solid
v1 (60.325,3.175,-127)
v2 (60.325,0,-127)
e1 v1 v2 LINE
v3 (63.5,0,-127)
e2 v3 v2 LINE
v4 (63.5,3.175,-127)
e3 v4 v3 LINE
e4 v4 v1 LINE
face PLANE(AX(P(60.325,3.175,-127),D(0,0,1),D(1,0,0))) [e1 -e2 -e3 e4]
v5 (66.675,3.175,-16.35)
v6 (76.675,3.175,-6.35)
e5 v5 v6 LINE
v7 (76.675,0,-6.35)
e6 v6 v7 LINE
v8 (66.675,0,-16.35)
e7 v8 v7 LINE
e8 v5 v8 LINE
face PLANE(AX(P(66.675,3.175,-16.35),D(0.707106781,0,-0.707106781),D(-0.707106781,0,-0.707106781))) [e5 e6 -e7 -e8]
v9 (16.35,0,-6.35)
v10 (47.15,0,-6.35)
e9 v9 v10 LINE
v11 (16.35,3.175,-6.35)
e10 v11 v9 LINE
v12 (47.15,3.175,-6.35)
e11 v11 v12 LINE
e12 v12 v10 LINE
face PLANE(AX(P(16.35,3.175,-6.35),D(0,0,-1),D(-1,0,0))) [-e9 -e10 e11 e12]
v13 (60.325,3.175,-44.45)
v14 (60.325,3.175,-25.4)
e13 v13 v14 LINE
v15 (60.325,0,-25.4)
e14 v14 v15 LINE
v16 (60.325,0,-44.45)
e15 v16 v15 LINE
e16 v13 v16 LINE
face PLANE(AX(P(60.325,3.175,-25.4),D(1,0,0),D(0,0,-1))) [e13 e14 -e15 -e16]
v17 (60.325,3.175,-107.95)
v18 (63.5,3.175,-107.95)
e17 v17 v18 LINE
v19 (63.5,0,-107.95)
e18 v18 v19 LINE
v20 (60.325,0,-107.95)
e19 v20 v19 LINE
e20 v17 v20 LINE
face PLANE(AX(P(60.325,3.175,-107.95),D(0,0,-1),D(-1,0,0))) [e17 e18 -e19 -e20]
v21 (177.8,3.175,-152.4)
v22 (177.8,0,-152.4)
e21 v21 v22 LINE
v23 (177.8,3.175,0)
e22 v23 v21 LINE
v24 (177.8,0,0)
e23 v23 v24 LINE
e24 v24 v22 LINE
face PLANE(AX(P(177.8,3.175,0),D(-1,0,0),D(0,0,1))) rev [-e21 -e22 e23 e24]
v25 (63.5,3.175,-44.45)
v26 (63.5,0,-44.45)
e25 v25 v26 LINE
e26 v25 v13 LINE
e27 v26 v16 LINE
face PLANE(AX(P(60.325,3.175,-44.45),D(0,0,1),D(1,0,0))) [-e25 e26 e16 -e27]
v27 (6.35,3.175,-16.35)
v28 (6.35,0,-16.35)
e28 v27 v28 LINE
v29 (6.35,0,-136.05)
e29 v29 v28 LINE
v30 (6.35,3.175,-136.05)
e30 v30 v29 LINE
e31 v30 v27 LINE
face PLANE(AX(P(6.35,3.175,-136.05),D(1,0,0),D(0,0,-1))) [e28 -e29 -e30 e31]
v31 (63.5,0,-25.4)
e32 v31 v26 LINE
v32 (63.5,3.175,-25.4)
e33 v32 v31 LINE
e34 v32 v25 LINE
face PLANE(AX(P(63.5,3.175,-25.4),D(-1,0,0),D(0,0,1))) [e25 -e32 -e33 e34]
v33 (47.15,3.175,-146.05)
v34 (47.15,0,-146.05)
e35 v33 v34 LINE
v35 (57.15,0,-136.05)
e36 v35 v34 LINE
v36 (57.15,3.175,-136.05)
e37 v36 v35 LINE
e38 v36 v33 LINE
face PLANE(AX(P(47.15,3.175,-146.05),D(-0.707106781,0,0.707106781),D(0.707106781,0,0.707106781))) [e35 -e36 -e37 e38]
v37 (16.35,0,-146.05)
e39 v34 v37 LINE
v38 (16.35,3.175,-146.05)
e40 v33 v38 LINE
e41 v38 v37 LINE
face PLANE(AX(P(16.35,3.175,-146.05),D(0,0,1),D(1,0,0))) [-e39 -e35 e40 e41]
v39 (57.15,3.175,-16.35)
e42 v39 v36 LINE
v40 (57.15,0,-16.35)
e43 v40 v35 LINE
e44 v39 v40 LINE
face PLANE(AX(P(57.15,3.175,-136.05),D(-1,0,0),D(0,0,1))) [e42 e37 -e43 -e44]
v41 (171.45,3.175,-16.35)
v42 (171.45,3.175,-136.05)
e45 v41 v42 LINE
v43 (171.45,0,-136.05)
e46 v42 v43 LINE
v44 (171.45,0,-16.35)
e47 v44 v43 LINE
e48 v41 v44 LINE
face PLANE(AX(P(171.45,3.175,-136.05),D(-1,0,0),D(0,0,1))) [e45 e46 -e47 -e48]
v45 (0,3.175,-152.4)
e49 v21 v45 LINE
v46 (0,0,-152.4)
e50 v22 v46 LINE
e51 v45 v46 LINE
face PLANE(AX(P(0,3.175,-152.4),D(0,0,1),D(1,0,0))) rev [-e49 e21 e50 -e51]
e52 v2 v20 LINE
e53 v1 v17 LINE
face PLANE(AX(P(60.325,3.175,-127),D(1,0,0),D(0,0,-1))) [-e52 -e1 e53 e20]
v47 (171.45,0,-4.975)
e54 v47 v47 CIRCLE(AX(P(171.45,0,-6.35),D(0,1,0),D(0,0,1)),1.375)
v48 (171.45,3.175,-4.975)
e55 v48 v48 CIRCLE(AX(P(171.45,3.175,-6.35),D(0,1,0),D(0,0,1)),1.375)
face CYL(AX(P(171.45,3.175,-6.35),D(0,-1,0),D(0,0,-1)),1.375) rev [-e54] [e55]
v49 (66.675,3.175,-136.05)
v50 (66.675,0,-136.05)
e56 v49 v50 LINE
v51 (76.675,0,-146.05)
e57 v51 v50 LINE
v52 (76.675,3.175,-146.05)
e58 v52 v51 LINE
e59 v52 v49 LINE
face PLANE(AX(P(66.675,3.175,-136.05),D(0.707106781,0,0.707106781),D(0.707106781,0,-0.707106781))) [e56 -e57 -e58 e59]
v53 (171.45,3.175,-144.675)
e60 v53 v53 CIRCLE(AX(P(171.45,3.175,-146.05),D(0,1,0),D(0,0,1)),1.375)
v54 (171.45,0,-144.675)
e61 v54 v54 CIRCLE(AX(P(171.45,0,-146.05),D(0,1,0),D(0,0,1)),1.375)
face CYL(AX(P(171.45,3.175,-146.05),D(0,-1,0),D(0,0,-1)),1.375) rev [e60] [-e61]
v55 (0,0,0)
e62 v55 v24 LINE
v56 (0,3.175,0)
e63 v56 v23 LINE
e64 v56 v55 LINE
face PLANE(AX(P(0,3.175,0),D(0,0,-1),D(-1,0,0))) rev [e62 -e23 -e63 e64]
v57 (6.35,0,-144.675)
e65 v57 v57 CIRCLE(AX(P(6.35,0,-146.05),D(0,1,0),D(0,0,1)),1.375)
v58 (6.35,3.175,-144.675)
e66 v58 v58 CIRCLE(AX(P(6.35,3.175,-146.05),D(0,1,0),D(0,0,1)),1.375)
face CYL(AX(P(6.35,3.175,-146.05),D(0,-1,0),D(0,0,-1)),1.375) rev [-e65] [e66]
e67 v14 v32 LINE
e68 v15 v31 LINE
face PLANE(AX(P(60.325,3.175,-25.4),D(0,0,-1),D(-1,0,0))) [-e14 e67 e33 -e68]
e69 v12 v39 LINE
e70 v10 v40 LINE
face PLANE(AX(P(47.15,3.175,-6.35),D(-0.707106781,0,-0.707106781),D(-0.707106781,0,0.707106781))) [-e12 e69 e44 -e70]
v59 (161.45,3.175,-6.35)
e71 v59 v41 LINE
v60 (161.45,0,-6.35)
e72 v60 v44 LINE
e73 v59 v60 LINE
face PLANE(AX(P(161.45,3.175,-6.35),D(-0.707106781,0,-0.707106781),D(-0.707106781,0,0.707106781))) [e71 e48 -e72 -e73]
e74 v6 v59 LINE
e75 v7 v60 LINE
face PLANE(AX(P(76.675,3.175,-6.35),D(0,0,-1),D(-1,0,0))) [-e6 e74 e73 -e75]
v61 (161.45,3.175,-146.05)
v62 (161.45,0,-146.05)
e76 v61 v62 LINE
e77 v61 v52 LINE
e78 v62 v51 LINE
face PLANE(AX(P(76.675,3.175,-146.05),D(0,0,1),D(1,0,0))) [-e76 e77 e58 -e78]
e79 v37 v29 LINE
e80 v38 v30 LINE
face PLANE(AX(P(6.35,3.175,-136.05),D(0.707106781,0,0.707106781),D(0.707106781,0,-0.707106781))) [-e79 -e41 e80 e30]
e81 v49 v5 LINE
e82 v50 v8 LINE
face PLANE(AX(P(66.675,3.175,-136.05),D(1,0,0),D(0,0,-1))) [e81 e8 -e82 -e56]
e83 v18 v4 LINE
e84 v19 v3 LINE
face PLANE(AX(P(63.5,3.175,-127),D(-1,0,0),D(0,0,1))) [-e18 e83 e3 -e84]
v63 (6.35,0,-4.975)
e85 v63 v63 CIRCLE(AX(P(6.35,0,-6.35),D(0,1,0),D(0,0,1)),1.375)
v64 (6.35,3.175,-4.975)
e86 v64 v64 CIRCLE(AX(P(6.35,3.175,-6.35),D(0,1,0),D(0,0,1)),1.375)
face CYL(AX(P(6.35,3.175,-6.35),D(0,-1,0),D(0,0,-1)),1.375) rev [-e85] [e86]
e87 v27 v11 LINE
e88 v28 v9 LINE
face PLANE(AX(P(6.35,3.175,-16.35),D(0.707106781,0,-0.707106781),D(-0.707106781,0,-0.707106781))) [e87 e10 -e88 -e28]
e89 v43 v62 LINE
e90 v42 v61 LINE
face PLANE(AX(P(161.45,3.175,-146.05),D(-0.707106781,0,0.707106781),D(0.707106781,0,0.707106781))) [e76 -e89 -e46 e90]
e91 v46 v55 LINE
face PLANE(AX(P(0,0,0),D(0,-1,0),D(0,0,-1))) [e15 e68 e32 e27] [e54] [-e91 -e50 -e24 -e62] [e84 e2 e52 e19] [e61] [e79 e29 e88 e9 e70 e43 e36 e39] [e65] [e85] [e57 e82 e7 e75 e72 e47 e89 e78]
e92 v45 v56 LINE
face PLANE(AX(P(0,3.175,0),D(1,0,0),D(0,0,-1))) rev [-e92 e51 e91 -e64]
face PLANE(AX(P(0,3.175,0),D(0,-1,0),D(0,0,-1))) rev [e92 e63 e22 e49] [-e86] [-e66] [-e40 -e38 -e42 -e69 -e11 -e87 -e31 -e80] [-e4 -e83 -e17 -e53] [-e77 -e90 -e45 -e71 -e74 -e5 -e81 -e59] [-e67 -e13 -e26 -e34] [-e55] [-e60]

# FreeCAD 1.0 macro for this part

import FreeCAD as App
import Part
import Sketcher
Q = App.Units.Quantity


def add_polygon(sketch, points):
    """Adds a closed chain of lines whose ends are joined by coincident constraints."""
    first, n = sketch.GeometryCount, len(points)
    for a, b in zip(points, points[1:] + points[:1]):
        sketch.addGeometry(Part.LineSegment(App.Vector(*a, 0), App.Vector(*b, 0)), False)
    for i in range(n):
        sketch.addConstraint(Sketcher.Constraint("Coincident", first + i, 2, first + (i + 1) % n, 1))

doc = App.newDocument("Part")
body = doc.addObject("PartDesign::Body", "Body")

sketch1 = body.newObject("Sketcher::SketchObject", "Sketch")
sketch1.AttachmentSupport = (doc.getObject("XZ_Plane"), [""])
sketch1.MapMode = "FlatFace"
add_polygon(sketch1, [(0, -152.4), (0, 0), (177.8, 0), (177.8, -152.4)])
sketch1.addGeometry(Part.Circle(App.Vector(6.3, -6.3, 0), App.Vector(0, 0, 1), 1.4), False)
add_polygon(sketch1, [(63.5, -25.4), (60.3, -25.4), (60.3, -44.5), (63.5, -44.5)])
sketch1.addGeometry(Part.Circle(App.Vector(171.4, -6.3, 0), App.Vector(0, 0, 1), 1.4), False)
add_polygon(sketch1, [(16.4, -6.3), (6.3, -16.4), (6.3, -136.1), (16.4, -146.1), (47.1, -146.1), (57.1, -136.1), (57.1, -16.4), (47.1, -6.3)])
sketch1.addGeometry(Part.Circle(App.Vector(6.3, -146.1, 0), App.Vector(0, 0, 1), 1.4), False)
add_polygon(sketch1, [(63.5, -108), (60.3, -108), (60.3, -127), (63.5, -127)])
add_polygon(sketch1, [(66.7, -136.1), (76.7, -146.1), (161.4, -146.1), (171.4, -136.1), (171.4, -16.4), (161.4, -6.3), (76.7, -6.3), (66.7, -16.4)])
sketch1.addGeometry(Part.Circle(App.Vector(171.4, -146.1, 0), App.Vector(0, 0, 1), 1.4), False)
sketch1.addConstraint(Sketcher.Constraint("Vertical", 0))
sketch1.addConstraint(Sketcher.Constraint("Horizontal", 1))
sketch1.addConstraint(Sketcher.Constraint("Vertical", 2))
sketch1.addConstraint(Sketcher.Constraint("Horizontal", 3))
sketch1.addConstraint(Sketcher.Constraint("Horizontal", 5))
sketch1.addConstraint(Sketcher.Constraint("Vertical", 6))
sketch1.addConstraint(Sketcher.Constraint("Horizontal", 7))
sketch1.addConstraint(Sketcher.Constraint("Vertical", 8))
sketch1.addConstraint(Sketcher.Constraint("Vertical", 11))
sketch1.addConstraint(Sketcher.Constraint("Horizontal", 13))
sketch1.addConstraint(Sketcher.Constraint("Vertical", 15))
sketch1.addConstraint(Sketcher.Constraint("Horizontal", 17))
sketch1.addConstraint(Sketcher.Constraint("Horizontal", 19))
sketch1.addConstraint(Sketcher.Constraint("Vertical", 20))
sketch1.addConstraint(Sketcher.Constraint("Horizontal", 21))
sketch1.addConstraint(Sketcher.Constraint("Vertical", 22))
sketch1.addConstraint(Sketcher.Constraint("Horizontal", 24))
sketch1.addConstraint(Sketcher.Constraint("Vertical", 26))
sketch1.addConstraint(Sketcher.Constraint("Horizontal", 28))
sketch1.addConstraint(Sketcher.Constraint("Vertical", 30))
sketch1.addConstraint(Sketcher.Constraint("Coincident", 0, 2, -1, 1))
sketch1.addConstraint(Sketcher.Constraint("Equal", 4, 9))
sketch1.addConstraint(Sketcher.Constraint("Equal", 9, 18))
sketch1.addConstraint(Sketcher.Constraint("Equal", 18, 31))
sketch1.addConstraint(Sketcher.Constraint("Perpendicular", 10, 12))
sketch1.addConstraint(Sketcher.Constraint("Perpendicular", 12, 14))
sketch1.addConstraint(Sketcher.Constraint("Perpendicular", 14, 16))
sketch1.addConstraint(Sketcher.Constraint("Parallel", 16, 23))
sketch1.addConstraint(Sketcher.Constraint("Perpendicular", 23, 25))
sketch1.addConstraint(Sketcher.Constraint("Perpendicular", 25, 27))
sketch1.addConstraint(Sketcher.Constraint("Perpendicular", 27, 29))
sketch1.addConstraint(Sketcher.Constraint("Horizontal", 4, 3, 9, 3))
sketch1.addConstraint(Sketcher.Constraint("Horizontal", 18, 3, 31, 3))
sketch1.addConstraint(Sketcher.Constraint("Horizontal", 31, 3, 12, 2))
sketch1.addConstraint(Sketcher.Constraint("Horizontal", 11, 2, 14, 2))
sketch1.addConstraint(Sketcher.Constraint("Horizontal", 10, 2, 15, 2))
sketch1.addConstraint(Sketcher.Constraint("Horizontal", 9, 3, 16, 2))
sketch1.addConstraint(Sketcher.Constraint("Horizontal", 13, 2, 23, 2))
sketch1.addConstraint(Sketcher.Constraint("Horizontal", 14, 2, 25, 2))
sketch1.addConstraint(Sketcher.Constraint("Horizontal", 15, 2, 26, 2))
sketch1.addConstraint(Sketcher.Constraint("Horizontal", 17, 2, 27, 2))
sketch1.addConstraint(Sketcher.Constraint("Horizontal", 26, 2, 29, 2))
sketch1.addConstraint(Sketcher.Constraint("Horizontal", 25, 2, 30, 2))
sketch1.addConstraint(Sketcher.Constraint("Vertical", 4, 3, 18, 3))
sketch1.addConstraint(Sketcher.Constraint("Vertical", 9, 3, 31, 3))
sketch1.addConstraint(Sketcher.Constraint("Vertical", 18, 3, 10, 2))
sketch1.addConstraint(Sketcher.Constraint("Vertical", 13, 2, 16, 2))
sketch1.addConstraint(Sketcher.Constraint("Vertical", 12, 2, 17, 2))
sketch1.addConstraint(Sketcher.Constraint("Vertical", 6, 2, 19, 2))
sketch1.addConstraint(Sketcher.Constraint("Vertical", 8, 2, 21, 2))
sketch1.addConstraint(Sketcher.Constraint("Vertical", 31, 3, 25, 2))
sketch1.addConstraint(Sketcher.Constraint("Equal", 8, 20))
sketch1.addConstraint(Sketcher.Constraint("DistanceX", 1, 1, 1, 2, Q("7 in")))
sketch1.addConstraint(Sketcher.Constraint("DistanceY", 0, 1, 0, 2, Q("6 in")))
sketch1.addConstraint(Sketcher.Constraint("DistanceY", 5, 2, -1, 1, Q("1 in")))
sketch1.addConstraint(Sketcher.Constraint("DistanceY", 20, 2, -1, 1, Q("5 in")))
sketch1.addConstraint(Sketcher.Constraint("DistanceY", 18, 3, 6, 2, Q("4 in")))
sketch1.addConstraint(Sketcher.Constraint("DistanceX", 11, 2, 14, 2, Q("2 in")))
sketch1.addConstraint(Sketcher.Constraint("DistanceY", 6, 2, 6, 1, Q("0.75 in")))
sketch1.addConstraint(Sketcher.Constraint("DistanceX", -1, 1, 7, 2, Q("2.5 in")))
sketch1.addConstraint(Sketcher.Constraint("DistanceX", 4, 3, 9, 3, Q("6.5 in")))
sketch1.addConstraint(Sketcher.Constraint("DistanceY", 18, 3, 4, 3, Q("5.5 in")))
sketch1.addConstraint(Sketcher.Constraint("Diameter", 4, 2.75))
sketch1.addConstraint(Sketcher.Constraint("DistanceX", 5, 2, 5, 1, Q("0.125 in")))
sketch1.addConstraint(Sketcher.Constraint("DistanceX", -1, 1, 4, 3, Q("0.25 in")))
sketch1.addConstraint(Sketcher.Constraint("DistanceX", 5, 2, 29, 2, Q("0.25 in")))
sketch1.addConstraint(Sketcher.Constraint("DistanceX", 13, 1, 13, 2, 30.8))
pad1 = body.newObject("PartDesign::Pad", "Pad")
pad1.Profile = sketch1
pad1.Length = Q("0.125 in")
pad1.Reversed = True

doc.recompute()
